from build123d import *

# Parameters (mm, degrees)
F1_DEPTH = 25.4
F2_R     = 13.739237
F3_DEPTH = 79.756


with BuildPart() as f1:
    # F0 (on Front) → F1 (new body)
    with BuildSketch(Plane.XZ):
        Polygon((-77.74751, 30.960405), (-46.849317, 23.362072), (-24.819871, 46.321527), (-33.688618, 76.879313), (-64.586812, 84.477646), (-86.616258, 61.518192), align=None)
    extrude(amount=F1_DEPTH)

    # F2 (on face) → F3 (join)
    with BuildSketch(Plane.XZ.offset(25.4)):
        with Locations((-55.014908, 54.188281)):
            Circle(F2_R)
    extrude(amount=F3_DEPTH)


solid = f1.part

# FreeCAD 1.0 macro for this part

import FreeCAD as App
import Part
import Sketcher
from FreeCAD import Vector
Q = App.Units.Quantity


def add_polygon(sketch, points):
    """Adds a closed chain of lines whose ends are joined by coincident constraints."""
    first, n = sketch.GeometryCount, len(points)
    for a, b in zip(points, points[1:] + points[:1]):
        sketch.addGeometry(Part.LineSegment(App.Vector(*a, 0), App.Vector(*b, 0)), False)
    for i in range(n):
        sketch.addConstraint(Sketcher.Constraint("Coincident", first + i, 2, first + (i + 1) % n, 1))

doc = App.newDocument("Part")
body = doc.addObject("PartDesign::Body", "Body")

# Sketch on XZ plane
sketch1 = doc.addObject("Sketcher::SketchObject", "Sketch")
body.addObject(sketch1)
sketch1.AttachmentSupport = (doc.XZ_Plane, [""])
sketch1.MapMode = "FlatFace"
add_polygon(sketch1, [(-77.74751, 30.960405), (-46.849317, 23.362072), (-24.819871, 46.321527), (-33.688618, 76.879313), (-64.586812, 84.477646), (-86.616258, 61.518192)])  # lines 0-5
sketch1.addConstraint(Sketcher.Constraint("Parallel", 0, 3))
sketch1.addConstraint(Sketcher.Constraint("Parallel", 1, 4))
sketch1.addConstraint(Sketcher.Constraint("Parallel", 2, 5))
sketch1.addConstraint(Sketcher.Constraint("Equal", 0, 1))
sketch1.addConstraint(Sketcher.Constraint("Equal", 1, 2))
sketch1.addConstraint(Sketcher.Constraint("Equal", 2, 3))
sketch1.addConstraint(Sketcher.Constraint("DistanceX", 0, 2, 2, 2, Q("13.160699 mm")))
sketch1.addConstraint(Sketcher.Constraint("Distance", 2, Q("31.818752 mm")))
sketch1.addConstraint(Sketcher.Constraint("DistanceX", 1, 2, -1, 1, Q("24.819871 mm")))
sketch1.addConstraint(Sketcher.Constraint("DistanceX", 3, 2, -1, 1, Q("64.586812 mm")))
sketch1.addConstraint(Sketcher.Constraint("DistanceX", 4, 2, -1, 1, Q("86.616258 mm")))
sketch1.addConstraint(Sketcher.Constraint("DistanceY", -1, 1, 0, 2, Q("23.362072 mm")))
pad1 = doc.addObject("PartDesign::Pad", "Pad")
body.addObject(pad1)
pad1.Profile = sketch1
pad1.Length = Q("1 in")

# Sketch on XZ plane
sketch2 = doc.addObject("Sketcher::SketchObject", "Sketch001")
body.addObject(sketch2)
sketch2.AttachmentSupport = (doc.XZ_Plane, [""])
sketch2.MapMode = "FlatFace"
sketch2.AttachmentOffset = App.Placement(Vector(0, 0, 1 * 25.4), App.Rotation())
sketch2.addGeometry(Part.Circle(Vector(-55.014908, 54.188281, 0), Vector(0, 0, 1), 13.739237), False)
sketch2.addConstraint(Sketcher.Constraint("Diameter", 0, Q("27.478474 mm")))
sketch2.addConstraint(Sketcher.Constraint("DistanceY", -1, 1, 0, 3, Q("54.188281 mm")))
sketch2.addConstraint(Sketcher.Constraint("DistanceX", 0, 3, -1, 1, Q("55.014908 mm")))
pad2 = doc.addObject("PartDesign::Pad", "Pad001")
body.addObject(pad2)
pad2.Profile = sketch2
pad2.Length = Q("3.14 in")

doc.recompute()
